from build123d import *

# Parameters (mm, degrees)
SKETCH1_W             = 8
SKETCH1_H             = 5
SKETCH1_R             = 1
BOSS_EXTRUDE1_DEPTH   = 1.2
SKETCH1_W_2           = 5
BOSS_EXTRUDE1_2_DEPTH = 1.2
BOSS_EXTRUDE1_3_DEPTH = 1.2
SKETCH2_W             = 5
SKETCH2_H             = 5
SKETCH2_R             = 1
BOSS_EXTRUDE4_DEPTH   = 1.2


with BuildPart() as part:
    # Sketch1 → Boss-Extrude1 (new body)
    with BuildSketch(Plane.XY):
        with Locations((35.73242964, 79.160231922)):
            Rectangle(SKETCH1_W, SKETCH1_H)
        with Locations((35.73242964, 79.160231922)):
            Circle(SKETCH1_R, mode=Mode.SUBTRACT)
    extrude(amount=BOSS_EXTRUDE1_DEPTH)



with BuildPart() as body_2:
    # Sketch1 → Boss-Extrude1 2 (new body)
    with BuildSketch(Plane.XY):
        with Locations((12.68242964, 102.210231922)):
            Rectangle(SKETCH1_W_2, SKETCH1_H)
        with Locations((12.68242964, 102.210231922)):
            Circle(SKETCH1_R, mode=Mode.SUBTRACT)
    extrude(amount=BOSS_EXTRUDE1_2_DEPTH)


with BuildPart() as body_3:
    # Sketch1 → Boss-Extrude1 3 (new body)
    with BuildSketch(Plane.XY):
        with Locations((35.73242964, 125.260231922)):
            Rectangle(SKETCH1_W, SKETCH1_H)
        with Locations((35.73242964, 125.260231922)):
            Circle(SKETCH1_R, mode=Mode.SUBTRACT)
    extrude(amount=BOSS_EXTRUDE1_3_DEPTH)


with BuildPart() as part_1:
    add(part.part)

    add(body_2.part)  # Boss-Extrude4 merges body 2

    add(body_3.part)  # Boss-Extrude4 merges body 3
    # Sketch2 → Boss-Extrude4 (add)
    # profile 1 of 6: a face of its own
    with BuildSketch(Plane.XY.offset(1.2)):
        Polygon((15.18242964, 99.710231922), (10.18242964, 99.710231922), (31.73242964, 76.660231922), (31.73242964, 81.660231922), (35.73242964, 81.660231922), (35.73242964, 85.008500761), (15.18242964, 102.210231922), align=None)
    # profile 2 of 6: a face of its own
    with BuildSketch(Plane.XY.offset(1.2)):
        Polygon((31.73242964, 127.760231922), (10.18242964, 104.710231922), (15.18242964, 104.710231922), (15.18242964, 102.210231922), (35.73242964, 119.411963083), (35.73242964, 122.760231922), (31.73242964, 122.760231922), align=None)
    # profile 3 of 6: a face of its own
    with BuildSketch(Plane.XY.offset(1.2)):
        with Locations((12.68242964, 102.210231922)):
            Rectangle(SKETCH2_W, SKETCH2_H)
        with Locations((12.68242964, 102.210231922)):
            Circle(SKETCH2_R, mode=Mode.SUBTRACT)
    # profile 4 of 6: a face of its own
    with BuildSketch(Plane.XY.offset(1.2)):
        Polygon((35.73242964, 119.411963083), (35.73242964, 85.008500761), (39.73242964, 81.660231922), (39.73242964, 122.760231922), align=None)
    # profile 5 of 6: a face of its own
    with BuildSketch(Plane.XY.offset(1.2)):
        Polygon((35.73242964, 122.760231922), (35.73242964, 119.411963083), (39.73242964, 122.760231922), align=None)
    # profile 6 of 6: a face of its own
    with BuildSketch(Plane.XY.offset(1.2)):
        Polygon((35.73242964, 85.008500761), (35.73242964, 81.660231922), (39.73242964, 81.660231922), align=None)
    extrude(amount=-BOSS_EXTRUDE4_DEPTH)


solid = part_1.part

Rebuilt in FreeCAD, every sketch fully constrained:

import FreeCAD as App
import Part
import Sketcher
Q = App.Units.Quantity


def add_polygon(sketch, points):
    """Adds a closed chain of lines whose ends are joined by coincident constraints."""
    first, n = sketch.GeometryCount, len(points)
    for a, b in zip(points, points[1:] + points[:1]):
        sketch.addGeometry(Part.LineSegment(App.Vector(*a, 0), App.Vector(*b, 0)), False)
    for i in range(n):
        sketch.addConstraint(Sketcher.Constraint("Coincident", first + i, 2, first + (i + 1) % n, 1))

doc = App.newDocument("Part")
params = doc.addObject("Spreadsheet::Sheet", "Params")
for row, (alias, value) in enumerate([
    ("sketch1_diameter", "2 mm"),
    ("sketch1_width", "8 mm"),
    ("sketch1_height", "5 mm"),
    ("pad1_length", "1.2 mm"),
    ("sketch2_diameter", "2 mm"),
    ("sketch2_width", "5 mm"),
    ("pad2_length", "1.2 mm"),
    ("sketch3_diameter", "2 mm"),
    ("sketch3_width", "8 mm"),
    ("sketch3_height", "5 mm"),
    ("pad3_length", "1.2 mm"),
    ("sketch4_diameter", "2 mm"),
    ("sketch4_width", "8 mm"),
    ("sketch4_height", "5 mm"),
    ("sketch4_height2", "41.1 mm"),
    ("pad4_length", "1.2 mm"),
], start=1):
    params.set(f"A{row}", alias)
    params.set(f"B{row}", "=" + value)
    params.setAlias(f"B{row}", alias)

body = doc.addObject("PartDesign::Body", "Body")

# Sketch on XY plane
sketch1 = body.newObject("Sketcher::SketchObject", "Sketch")
sketch1.AttachmentSupport = (doc.getObject("XY_Plane"), [""])
sketch1.MapMode = "FlatFace"
add_polygon(sketch1, [(31.7, 81.7), (31.7, 76.7), (39.7, 76.7), (39.7, 81.7)])  # lines 0-3
sketch1.addGeometry(Part.Circle(App.Vector(35.7, 79.2, 0), App.Vector(0, 0, 1), 1), False)  # 4
sketch1.addConstraint(Sketcher.Constraint("Vertical", 0))
sketch1.addConstraint(Sketcher.Constraint("Horizontal", 1))
sketch1.addConstraint(Sketcher.Constraint("Vertical", 2))
sketch1.addConstraint(Sketcher.Constraint("Horizontal", 3))
sketch1.addConstraint(Sketcher.Constraint("Diameter", 4, Q("2 mm")))
sketch1.addConstraint(Sketcher.Constraint("DistanceX", 1, 1, 1, 2, Q("8 mm")))
sketch1.addConstraint(Sketcher.Constraint("DistanceY", 0, 2, 0, 1, Q("5 mm")))
sketch1.addConstraint(Sketcher.Constraint("DistanceX", 0, 2, 4, 3, Q("4 mm")))
sketch1.addConstraint(Sketcher.Constraint("DistanceY", 0, 2, 4, 3, Q("2.5 mm")))
sketch1.addConstraint(Sketcher.Constraint("DistanceX", -1, 1, 4, 3, Q("35.73243 mm")))
sketch1.addConstraint(Sketcher.Constraint("DistanceY", -1, 1, 4, 3, Q("79.160232 mm")))
sketch1.setExpression("Constraints[8]", "Params.sketch1_diameter")
sketch1.setExpression("Constraints[9]", "Params.sketch1_width")
sketch1.setExpression("Constraints[10]", "Params.sketch1_height")
pad1 = body.newObject("PartDesign::Pad", "Pad")
pad1.Profile = sketch1
pad1.setExpression("Length", "Params.pad1_length")
body2 = doc.addObject("PartDesign::Body", "Body001")

# Sketch on XY plane
sketch2 = body2.newObject("Sketcher::SketchObject", "Sketch001")
sketch2.AttachmentSupport = (doc.getObject("XY_Plane001"), [""])
sketch2.MapMode = "FlatFace"
add_polygon(sketch2, [(10.2, 104.7), (10.2, 99.7), (15.2, 99.7), (15.2, 104.7)])  # lines 0-3
sketch2.addGeometry(Part.Circle(App.Vector(12.7, 102.2, 0), App.Vector(0, 0, 1), 1), False)  # 4
sketch2.addConstraint(Sketcher.Constraint("Vertical", 0))
sketch2.addConstraint(Sketcher.Constraint("Horizontal", 1))
sketch2.addConstraint(Sketcher.Constraint("Vertical", 2))
sketch2.addConstraint(Sketcher.Constraint("Horizontal", 3))
sketch2.addConstraint(Sketcher.Constraint("Equal", 3, 0))
sketch2.addConstraint(Sketcher.Constraint("Diameter", 4, Q("2 mm")))
sketch2.addConstraint(Sketcher.Constraint("DistanceX", 1, 1, 1, 2, Q("5 mm")))
sketch2.addConstraint(Sketcher.Constraint("DistanceX", 0, 2, 4, 3, Q("2.5 mm")))
sketch2.addConstraint(Sketcher.Constraint("DistanceY", 0, 2, 4, 3, Q("2.5 mm")))
sketch2.addConstraint(Sketcher.Constraint("DistanceX", -1, 1, 4, 3, Q("12.68243 mm")))
sketch2.addConstraint(Sketcher.Constraint("DistanceY", -1, 1, 4, 3, Q("102.210232 mm")))
sketch2.setExpression("Constraints[9]", "Params.sketch2_diameter")
sketch2.setExpression("Constraints[10]", "Params.sketch2_width")
pad2 = body2.newObject("PartDesign::Pad", "Pad001")
pad2.Profile = sketch2
pad2.setExpression("Length", "Params.pad2_length")
body3 = doc.addObject("PartDesign::Body", "Body002")

# Sketch on XY plane
sketch3 = body3.newObject("Sketcher::SketchObject", "Sketch002")
sketch3.AttachmentSupport = (doc.getObject("XY_Plane002"), [""])
sketch3.MapMode = "FlatFace"
add_polygon(sketch3, [(31.7, 127.8), (31.7, 122.8), (39.7, 122.8), (39.7, 127.8)])  # lines 0-3
sketch3.addGeometry(Part.Circle(App.Vector(35.7, 125.3, 0), App.Vector(0, 0, 1), 1), False)  # 4
sketch3.addConstraint(Sketcher.Constraint("Vertical", 0))
sketch3.addConstraint(Sketcher.Constraint("Horizontal", 1))
sketch3.addConstraint(Sketcher.Constraint("Vertical", 2))
sketch3.addConstraint(Sketcher.Constraint("Horizontal", 3))
sketch3.addConstraint(Sketcher.Constraint("Diameter", 4, Q("2 mm")))
sketch3.addConstraint(Sketcher.Constraint("DistanceX", 1, 1, 1, 2, Q("8 mm")))
sketch3.addConstraint(Sketcher.Constraint("DistanceY", 0, 2, 0, 1, Q("5 mm")))
sketch3.addConstraint(Sketcher.Constraint("DistanceX", 0, 2, 4, 3, Q("4 mm")))
sketch3.addConstraint(Sketcher.Constraint("DistanceY", 0, 2, 4, 3, Q("2.5 mm")))
sketch3.addConstraint(Sketcher.Constraint("DistanceX", -1, 1, 4, 3, Q("35.73243 mm")))
sketch3.addConstraint(Sketcher.Constraint("DistanceY", -1, 1, 4, 3, Q("125.260232 mm")))
sketch3.setExpression("Constraints[8]", "Params.sketch3_diameter")
sketch3.setExpression("Constraints[9]", "Params.sketch3_width")
sketch3.setExpression("Constraints[10]", "Params.sketch3_height")
pad3 = body3.newObject("PartDesign::Pad", "Pad002")
pad3.Profile = sketch3
pad3.setExpression("Length", "Params.pad3_length")
body.AllowCompound = True
doc.recompute()

boolean = body.newObject("PartDesign::Boolean", "Boolean")
boolean.Type = "Fuse"
boolean.addObjects([body2])
doc.recompute()

boolean2 = body.newObject("PartDesign::Boolean", "Boolean001")
boolean2.Type = "Fuse"
boolean2.addObjects([body3])

# Sketch on XY plane
sketch4 = body.newObject("Sketcher::SketchObject", "Sketch003")
sketch4.AttachmentSupport = (doc.getObject("XY_Plane"), [""])
sketch4.MapMode = "FlatFace"
sketch4.AttachmentOffset = App.Placement(App.Vector(0, 0, 1.2), App.Rotation())
add_polygon(sketch4, [(10.2, 99.7), (31.7, 76.7), (31.7, 81.7), (39.7, 81.7), (39.7, 122.8), (31.7, 122.8), (31.7, 127.8), (10.2, 104.7)])  # lines 0-7
add_polygon(sketch4, [(35.7, 85), (15.2, 102.2), (35.7, 119.4)])  # lines 8-10
sketch4.addGeometry(Part.Circle(App.Vector(12.7, 102.2, 0), App.Vector(0, 0, 1), 1), False)  # 11
sketch4.addConstraint(Sketcher.Constraint("Vertical", 1))
sketch4.addConstraint(Sketcher.Constraint("Horizontal", 2))
sketch4.addConstraint(Sketcher.Constraint("Vertical", 3))
sketch4.addConstraint(Sketcher.Constraint("Horizontal", 4))
sketch4.addConstraint(Sketcher.Constraint("Vertical", 5))
sketch4.addConstraint(Sketcher.Constraint("Vertical", 7))
sketch4.addConstraint(Sketcher.Constraint("Vertical", 10))
sketch4.addConstraint(Sketcher.Constraint("Horizontal", 11, 3, 8, 2))
sketch4.addConstraint(Sketcher.Constraint("Vertical", 1, 2, 4, 2))
sketch4.addConstraint(Sketcher.Constraint("Equal", 1, 5))
sketch4.addConstraint(Sketcher.Constraint("Equal", 5, 7))
sketch4.addConstraint(Sketcher.Constraint("Equal", 0, 6))
sketch4.addConstraint(Sketcher.Constraint("Equal", 8, 9))
sketch4.addConstraint(Sketcher.Constraint("Diameter", 11, Q("2 mm")))
sketch4.addConstraint(Sketcher.Constraint("DistanceX", 2, 1, 2, 2, Q("8 mm")))
sketch4.addConstraint(Sketcher.Constraint("DistanceY", 1, 1, 1, 2, Q("5 mm")))
sketch4.addConstraint(Sketcher.Constraint("DistanceY", 3, 1, 3, 2, Q("41.1 mm")))
sketch4.addConstraint(Sketcher.Constraint("DistanceX", 6, 2, 8, 2, Q("5 mm")))
sketch4.addConstraint(Sketcher.Constraint("DistanceX", 9, 2, 3, 2, Q("4 mm")))
sketch4.addConstraint(Sketcher.Constraint("DistanceX", 6, 2, 11, 3, Q("2.5 mm")))
sketch4.addConstraint(Sketcher.Constraint("DistanceY", 11, 3, 6, 2, Q("2.5 mm")))
sketch4.addConstraint(Sketcher.Constraint("DistanceX", 11, 3, 0, 2, Q("19.05 mm")))
sketch4.addConstraint(Sketcher.Constraint("DistanceY", -1, 1, 10, 2, Q("85.008501 mm")))
sketch4.addConstraint(Sketcher.Constraint("DistanceY", 10, 2, 10, 1, Q("34.403462 mm")))
sketch4.addConstraint(Sketcher.Constraint("DistanceX", -1, 1, 11, 3, Q("12.68243 mm")))
sketch4.setExpression("Constraints[24]", "Params.sketch4_diameter")
sketch4.setExpression("Constraints[25]", "Params.sketch4_width")
sketch4.setExpression("Constraints[26]", "Params.sketch4_height")
sketch4.setExpression("Constraints[27]", "Params.sketch4_height2")
pad4 = body.newObject("PartDesign::Pad", "Pad003")
pad4.Profile = sketch4
pad4.setExpression("Length", "Params.pad4_length")
pad4.Reversed = True

doc.recompute()
